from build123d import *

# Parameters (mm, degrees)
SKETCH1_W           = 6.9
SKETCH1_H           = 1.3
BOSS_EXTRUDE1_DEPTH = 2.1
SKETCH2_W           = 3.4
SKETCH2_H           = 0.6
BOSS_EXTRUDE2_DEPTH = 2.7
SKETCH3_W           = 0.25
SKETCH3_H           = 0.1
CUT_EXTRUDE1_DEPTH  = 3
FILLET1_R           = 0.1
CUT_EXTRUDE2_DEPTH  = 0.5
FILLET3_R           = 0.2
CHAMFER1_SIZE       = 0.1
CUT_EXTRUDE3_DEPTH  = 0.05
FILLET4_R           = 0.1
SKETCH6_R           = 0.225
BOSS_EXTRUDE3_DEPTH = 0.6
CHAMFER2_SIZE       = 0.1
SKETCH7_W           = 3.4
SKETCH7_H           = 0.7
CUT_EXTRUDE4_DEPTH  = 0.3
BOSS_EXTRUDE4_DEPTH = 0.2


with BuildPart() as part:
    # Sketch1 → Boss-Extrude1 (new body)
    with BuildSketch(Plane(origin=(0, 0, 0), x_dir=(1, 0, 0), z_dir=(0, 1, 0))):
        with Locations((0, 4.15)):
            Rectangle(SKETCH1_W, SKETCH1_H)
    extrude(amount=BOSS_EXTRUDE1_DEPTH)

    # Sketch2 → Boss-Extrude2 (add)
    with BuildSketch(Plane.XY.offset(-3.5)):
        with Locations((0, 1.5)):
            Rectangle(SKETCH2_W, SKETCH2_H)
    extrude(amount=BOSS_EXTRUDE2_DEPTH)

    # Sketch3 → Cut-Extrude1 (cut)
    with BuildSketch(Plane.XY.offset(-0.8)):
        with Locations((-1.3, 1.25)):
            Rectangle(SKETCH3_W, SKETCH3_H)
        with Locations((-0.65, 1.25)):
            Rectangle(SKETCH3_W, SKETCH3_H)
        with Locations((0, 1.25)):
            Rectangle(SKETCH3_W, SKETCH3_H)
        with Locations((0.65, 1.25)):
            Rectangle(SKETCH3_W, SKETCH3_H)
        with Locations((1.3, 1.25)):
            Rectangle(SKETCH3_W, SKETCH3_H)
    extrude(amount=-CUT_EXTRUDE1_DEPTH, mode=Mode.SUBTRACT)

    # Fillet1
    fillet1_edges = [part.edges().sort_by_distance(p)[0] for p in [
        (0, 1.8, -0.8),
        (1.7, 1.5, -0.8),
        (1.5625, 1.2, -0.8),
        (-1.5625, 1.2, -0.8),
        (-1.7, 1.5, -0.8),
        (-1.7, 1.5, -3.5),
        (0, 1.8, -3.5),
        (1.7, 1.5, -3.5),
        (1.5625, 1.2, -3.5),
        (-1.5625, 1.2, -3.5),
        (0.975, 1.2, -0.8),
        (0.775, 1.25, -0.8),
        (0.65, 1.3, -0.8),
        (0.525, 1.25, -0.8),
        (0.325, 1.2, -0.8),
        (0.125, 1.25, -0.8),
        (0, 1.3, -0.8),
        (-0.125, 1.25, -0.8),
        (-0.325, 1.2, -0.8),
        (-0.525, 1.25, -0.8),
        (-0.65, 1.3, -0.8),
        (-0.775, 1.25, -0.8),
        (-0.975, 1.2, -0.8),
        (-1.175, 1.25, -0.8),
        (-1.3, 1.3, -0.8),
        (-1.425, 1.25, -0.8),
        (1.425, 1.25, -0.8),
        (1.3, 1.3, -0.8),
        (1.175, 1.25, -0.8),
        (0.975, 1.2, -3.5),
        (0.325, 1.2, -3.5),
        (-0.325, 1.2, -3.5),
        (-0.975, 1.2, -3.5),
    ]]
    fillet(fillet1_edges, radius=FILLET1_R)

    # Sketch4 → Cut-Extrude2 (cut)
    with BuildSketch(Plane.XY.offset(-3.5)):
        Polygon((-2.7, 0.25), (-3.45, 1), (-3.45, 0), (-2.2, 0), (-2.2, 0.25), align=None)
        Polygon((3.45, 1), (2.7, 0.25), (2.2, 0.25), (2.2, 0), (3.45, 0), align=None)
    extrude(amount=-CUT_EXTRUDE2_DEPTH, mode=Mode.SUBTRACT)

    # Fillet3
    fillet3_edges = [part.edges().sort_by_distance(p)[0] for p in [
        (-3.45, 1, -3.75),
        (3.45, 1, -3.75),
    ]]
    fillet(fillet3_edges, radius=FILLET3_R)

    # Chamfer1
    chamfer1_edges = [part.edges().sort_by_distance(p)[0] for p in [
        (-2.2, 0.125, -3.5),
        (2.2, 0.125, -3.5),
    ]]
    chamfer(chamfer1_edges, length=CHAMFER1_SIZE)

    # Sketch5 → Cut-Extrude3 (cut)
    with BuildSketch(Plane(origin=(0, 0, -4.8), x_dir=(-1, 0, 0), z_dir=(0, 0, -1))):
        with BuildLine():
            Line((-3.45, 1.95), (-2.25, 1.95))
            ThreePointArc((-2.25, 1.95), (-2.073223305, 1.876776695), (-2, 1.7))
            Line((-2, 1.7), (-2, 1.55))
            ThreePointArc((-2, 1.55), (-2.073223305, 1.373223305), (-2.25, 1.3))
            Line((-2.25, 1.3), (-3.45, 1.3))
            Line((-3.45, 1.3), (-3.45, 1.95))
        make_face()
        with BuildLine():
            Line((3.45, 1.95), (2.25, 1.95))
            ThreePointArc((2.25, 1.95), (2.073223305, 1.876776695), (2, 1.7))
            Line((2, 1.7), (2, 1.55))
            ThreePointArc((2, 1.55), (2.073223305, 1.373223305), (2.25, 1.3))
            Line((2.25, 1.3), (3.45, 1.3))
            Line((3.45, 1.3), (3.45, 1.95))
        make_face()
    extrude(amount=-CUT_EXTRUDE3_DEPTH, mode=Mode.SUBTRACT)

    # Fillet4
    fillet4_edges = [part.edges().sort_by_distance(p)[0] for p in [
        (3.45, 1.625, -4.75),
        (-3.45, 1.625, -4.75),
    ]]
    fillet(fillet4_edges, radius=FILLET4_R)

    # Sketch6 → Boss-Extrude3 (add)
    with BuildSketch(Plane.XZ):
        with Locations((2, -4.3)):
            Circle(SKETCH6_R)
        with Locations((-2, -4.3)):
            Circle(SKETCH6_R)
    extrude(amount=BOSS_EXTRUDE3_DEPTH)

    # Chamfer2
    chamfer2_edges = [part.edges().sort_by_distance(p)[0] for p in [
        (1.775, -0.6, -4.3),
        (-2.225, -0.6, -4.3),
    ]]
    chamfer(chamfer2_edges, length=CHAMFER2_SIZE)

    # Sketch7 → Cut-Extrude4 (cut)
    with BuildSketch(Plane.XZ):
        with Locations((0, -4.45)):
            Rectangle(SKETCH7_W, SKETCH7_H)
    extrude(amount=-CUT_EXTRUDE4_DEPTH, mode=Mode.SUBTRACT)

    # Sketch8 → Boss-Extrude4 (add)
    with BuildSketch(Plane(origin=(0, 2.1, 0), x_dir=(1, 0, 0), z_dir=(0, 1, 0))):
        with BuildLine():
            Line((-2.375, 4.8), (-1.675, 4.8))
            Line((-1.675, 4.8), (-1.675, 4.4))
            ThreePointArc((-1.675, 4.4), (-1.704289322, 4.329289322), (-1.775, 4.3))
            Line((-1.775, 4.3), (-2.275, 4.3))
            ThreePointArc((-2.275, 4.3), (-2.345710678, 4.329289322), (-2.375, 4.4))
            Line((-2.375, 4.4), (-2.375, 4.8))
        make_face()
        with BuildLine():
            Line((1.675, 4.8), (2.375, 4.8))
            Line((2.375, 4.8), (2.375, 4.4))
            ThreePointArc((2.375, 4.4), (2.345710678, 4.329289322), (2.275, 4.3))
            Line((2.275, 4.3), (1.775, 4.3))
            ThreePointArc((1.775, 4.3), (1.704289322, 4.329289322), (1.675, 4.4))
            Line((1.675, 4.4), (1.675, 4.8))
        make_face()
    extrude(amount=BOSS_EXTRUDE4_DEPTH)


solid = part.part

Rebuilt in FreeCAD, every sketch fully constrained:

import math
import FreeCAD as App
import Part
import Sketcher


def edges_at(feature, points):
    """Names of the edges that pass closest to the given points."""
    edges = feature.Shape.Edges
    near = lambda p: min(range(len(edges)), key=lambda i: edges[i].distToShape(Part.Vertex(*p))[0])
    return sorted({f"Edge{near(p) + 1}" for p in points})

doc = App.newDocument("Part")
body = doc.addObject("PartDesign::Body", "Body")

# Sketch on XZ plane
sketch1 = body.newObject("Sketcher::SketchObject", "Sketch")
sketch1.AttachmentSupport = (doc.getObject("XZ_Plane"), [""])
sketch1.MapMode = "FlatFace"
sketch1.addGeometry([
    Part.LineSegment(App.Vector(-3.45, -4.8, 0), App.Vector(-3.45, -3.5, 0)),
    Part.LineSegment(App.Vector(-3.45, -3.5, 0), App.Vector(3.45, -3.5, 0)),
    Part.LineSegment(App.Vector(3.45, -3.5, 0), App.Vector(3.45, -4.8, 0)),
    Part.LineSegment(App.Vector(3.45, -4.8, 0), App.Vector(-3.45, -4.8, 0)),
], False)
sketch1.addConstraint([
    Sketcher.Constraint("Coincident", 0, 2, 1, 1),
    Sketcher.Constraint("Coincident", 1, 2, 2, 1),
    Sketcher.Constraint("Coincident", 2, 2, 3, 1),
    Sketcher.Constraint("Coincident", 3, 2, 0, 1),
    Sketcher.Constraint("Vertical", 0),
    Sketcher.Constraint("Horizontal", 1),
    Sketcher.Constraint("Vertical", 2),
    Sketcher.Constraint("Horizontal", 3),
    Sketcher.Constraint("DistanceX", 1, 1, 1, 2, 6.9),
    Sketcher.Constraint("DistanceY", 0, 1, 0, 2, 1.3),
    Sketcher.Constraint("DistanceY", 0, 2, -1, 1, 3.5),
    Sketcher.Constraint("DistanceX", 0, 2, -1, 1, 3.45),
])
pad1 = body.newObject("PartDesign::Pad", "Pad")
pad1.Profile = sketch1
pad1.Length = 2.1
pad1.Reversed = True

# Sketch on XY plane
sketch2 = body.newObject("Sketcher::SketchObject", "Sketch001")
sketch2.AttachmentSupport = (doc.getObject("XY_Plane"), [""])
sketch2.MapMode = "FlatFace"
sketch2.AttachmentOffset = App.Placement(App.Vector(0, 0, -3.5), App.Rotation())
sketch2.addGeometry([
    Part.LineSegment(App.Vector(-1.7, 1.8, 0), App.Vector(-1.7, 1.2, 0)),
    Part.LineSegment(App.Vector(-1.7, 1.2, 0), App.Vector(1.7, 1.2, 0)),
    Part.LineSegment(App.Vector(1.7, 1.2, 0), App.Vector(1.7, 1.8, 0)),
    Part.LineSegment(App.Vector(1.7, 1.8, 0), App.Vector(-1.7, 1.8, 0)),
], False)
sketch2.addConstraint([
    Sketcher.Constraint("Coincident", 0, 2, 1, 1),
    Sketcher.Constraint("Coincident", 1, 2, 2, 1),
    Sketcher.Constraint("Coincident", 2, 2, 3, 1),
    Sketcher.Constraint("Coincident", 3, 2, 0, 1),
    Sketcher.Constraint("Vertical", 0),
    Sketcher.Constraint("Horizontal", 1),
    Sketcher.Constraint("Vertical", 2),
    Sketcher.Constraint("Horizontal", 3),
    Sketcher.Constraint("DistanceX", 1, 1, 1, 2, 3.4),
    Sketcher.Constraint("DistanceY", 0, 2, 0, 1, 0.6),
    Sketcher.Constraint("DistanceX", 0, 2, -1, 1, 1.7),
    Sketcher.Constraint("DistanceY", -1, 1, 0, 2, 1.2),
])
pad2 = body.newObject("PartDesign::Pad", "Pad001")
pad2.Profile = sketch2
pad2.Length = 2.7

# Sketch on XY plane
sketch3 = body.newObject("Sketcher::SketchObject", "Sketch002")
sketch3.AttachmentSupport = (doc.getObject("XY_Plane"), [""])
sketch3.MapMode = "FlatFace"
sketch3.AttachmentOffset = App.Placement(App.Vector(0, 0, -0.8), App.Rotation())
sketch3.addGeometry([
    Part.LineSegment(App.Vector(-1.425, 1.3, 0), App.Vector(-1.425, 1.2, 0)),  # 0
    Part.LineSegment(App.Vector(-1.425, 1.2, 0), App.Vector(-1.175, 1.2, 0)),  # 1
    Part.LineSegment(App.Vector(-1.175, 1.2, 0), App.Vector(-1.175, 1.3, 0)),  # 2
    Part.LineSegment(App.Vector(-1.175, 1.3, 0), App.Vector(-1.425, 1.3, 0)),  # 3
    Part.LineSegment(App.Vector(-0.775, 1.3, 0), App.Vector(-0.775, 1.2, 0)),  # 4
    Part.LineSegment(App.Vector(-0.775, 1.2, 0), App.Vector(-0.525, 1.2, 0)),  # 5
    Part.LineSegment(App.Vector(-0.525, 1.2, 0), App.Vector(-0.525, 1.3, 0)),  # 6
    Part.LineSegment(App.Vector(-0.525, 1.3, 0), App.Vector(-0.775, 1.3, 0)),  # 7
    Part.LineSegment(App.Vector(-0.125, 1.3, 0), App.Vector(-0.125, 1.2, 0)),  # 8
    Part.LineSegment(App.Vector(-0.125, 1.2, 0), App.Vector(0.125, 1.2, 0)),  # 9
    Part.LineSegment(App.Vector(0.125, 1.2, 0), App.Vector(0.125, 1.3, 0)),  # 10
    Part.LineSegment(App.Vector(0.125, 1.3, 0), App.Vector(-0.125, 1.3, 0)),  # 11
    Part.LineSegment(App.Vector(0.525, 1.3, 0), App.Vector(0.525, 1.2, 0)),  # 12
    Part.LineSegment(App.Vector(0.525, 1.2, 0), App.Vector(0.775, 1.2, 0)),  # 13
    Part.LineSegment(App.Vector(0.775, 1.2, 0), App.Vector(0.775, 1.3, 0)),  # 14
    Part.LineSegment(App.Vector(0.775, 1.3, 0), App.Vector(0.525, 1.3, 0)),  # 15
    Part.LineSegment(App.Vector(1.175, 1.3, 0), App.Vector(1.175, 1.2, 0)),  # 16
    Part.LineSegment(App.Vector(1.175, 1.2, 0), App.Vector(1.425, 1.2, 0)),  # 17
    Part.LineSegment(App.Vector(1.425, 1.2, 0), App.Vector(1.425, 1.3, 0)),  # 18
    Part.LineSegment(App.Vector(1.425, 1.3, 0), App.Vector(1.175, 1.3, 0)),  # 19
], False)
sketch3.addConstraint([
    Sketcher.Constraint("Coincident", 0, 2, 1, 1),
    Sketcher.Constraint("Coincident", 1, 2, 2, 1),
    Sketcher.Constraint("Coincident", 2, 2, 3, 1),
    Sketcher.Constraint("Coincident", 3, 2, 0, 1),
    Sketcher.Constraint("Coincident", 4, 2, 5, 1),
    Sketcher.Constraint("Coincident", 5, 2, 6, 1),
    Sketcher.Constraint("Coincident", 6, 2, 7, 1),
    Sketcher.Constraint("Coincident", 7, 2, 4, 1),
    Sketcher.Constraint("Coincident", 8, 2, 9, 1),
    Sketcher.Constraint("Coincident", 9, 2, 10, 1),
    Sketcher.Constraint("Coincident", 10, 2, 11, 1),
    Sketcher.Constraint("Coincident", 11, 2, 8, 1),
    Sketcher.Constraint("Coincident", 12, 2, 13, 1),
    Sketcher.Constraint("Coincident", 13, 2, 14, 1),
    Sketcher.Constraint("Coincident", 14, 2, 15, 1),
    Sketcher.Constraint("Coincident", 15, 2, 12, 1),
    Sketcher.Constraint("Coincident", 16, 2, 17, 1),
    Sketcher.Constraint("Coincident", 17, 2, 18, 1),
    Sketcher.Constraint("Coincident", 18, 2, 19, 1),
    Sketcher.Constraint("Coincident", 19, 2, 16, 1),
    Sketcher.Constraint("Vertical", 0),
    Sketcher.Constraint("Horizontal", 1),
    Sketcher.Constraint("Vertical", 2),
    Sketcher.Constraint("Horizontal", 3),
    Sketcher.Constraint("Vertical", 4),
    Sketcher.Constraint("Horizontal", 5),
    Sketcher.Constraint("Vertical", 6),
    Sketcher.Constraint("Horizontal", 7),
    Sketcher.Constraint("Vertical", 8),
    Sketcher.Constraint("Horizontal", 9),
    Sketcher.Constraint("Vertical", 10),
    Sketcher.Constraint("Horizontal", 11),
    Sketcher.Constraint("Vertical", 12),
    Sketcher.Constraint("Horizontal", 13),
    Sketcher.Constraint("Vertical", 14),
    Sketcher.Constraint("Horizontal", 15),
    Sketcher.Constraint("Vertical", 16),
    Sketcher.Constraint("Horizontal", 17),
    Sketcher.Constraint("Vertical", 18),
    Sketcher.Constraint("Horizontal", 19),
    Sketcher.Constraint("Symmetric", 5, 2, 12, 2, -2),
    Sketcher.Constraint("Symmetric", 7, 2, 14, 2, -2),
    Sketcher.Constraint("Symmetric", 1, 2, 16, 2, -2),
    Sketcher.Constraint("Symmetric", 3, 2, 18, 2, -2),
    Sketcher.Constraint("Horizontal", 1, 2, 4, 2),
    Sketcher.Constraint("Horizontal", 3, 2, 6, 2),
    Sketcher.Constraint("Horizontal", 5, 2, 8, 2),
    Sketcher.Constraint("Horizontal", 7, 2, 10, 2),
    Sketcher.Constraint("Equal", 3, 5),
    Sketcher.Constraint("Equal", 7, 9),
    Sketcher.Constraint("DistanceY", 0, 2, 0, 1, 0.1),
    Sketcher.Constraint("DistanceX", 1, 1, 1, 2, 0.25),
    Sketcher.Constraint("DistanceY", -1, 1, 0, 2, 1.2),
    Sketcher.Constraint("DistanceX", 1, 2, 4, 2, 0.4),
    Sketcher.Constraint("DistanceX", 5, 2, 8, 2, 0.4),
    Sketcher.Constraint("DistanceX", 9, 2, 12, 2, 0.4),
])
pocket1 = body.newObject("PartDesign::Pocket", "Pocket")
pocket1.Profile = sketch3
pocket1.Length = 3
doc.recompute()

fillet = body.newObject("PartDesign::Fillet", "Fillet")
fillet.Base = (pocket1, edges_at(pocket1, [
    (0, 1.8, -0.8),
    (1.7, 1.5, -0.8),
    (1.562, 1.2, -0.8),
    (-1.562, 1.2, -0.8),
    (-1.7, 1.5, -0.8),
    (-1.7, 1.5, -3.5),
    (0, 1.8, -3.5),
    (1.7, 1.5, -3.5),
    (1.562, 1.2, -3.5),
    (-1.562, 1.2, -3.5),
    (0.975, 1.2, -0.8),
    (0.775, 1.25, -0.8),
    (0.65, 1.3, -0.8),
    (0.525, 1.25, -0.8),
    (0.325, 1.2, -0.8),
    (0.125, 1.25, -0.8),
    (0, 1.3, -0.8),
    (-0.125, 1.25, -0.8),
    (-0.325, 1.2, -0.8),
    (-0.525, 1.25, -0.8),
    (-0.65, 1.3, -0.8),
    (-0.775, 1.25, -0.8),
    (-0.975, 1.2, -0.8),
    (-1.175, 1.25, -0.8),
    (-1.3, 1.3, -0.8),
    (-1.425, 1.25, -0.8),
    (1.425, 1.25, -0.8),
    (1.3, 1.3, -0.8),
    (1.175, 1.25, -0.8),
    (0.975, 1.2, -3.5),
    (0.325, 1.2, -3.5),
    (-0.325, 1.2, -3.5),
    (-0.975, 1.2, -3.5),
]))
fillet.Radius = 0.1

# Sketch on XY plane
sketch4 = body.newObject("Sketcher::SketchObject", "Sketch003")
sketch4.AttachmentSupport = (doc.getObject("XY_Plane"), [""])
sketch4.MapMode = "FlatFace"
sketch4.AttachmentOffset = App.Placement(App.Vector(0, 0, -3.5), App.Rotation())
sketch4.addGeometry([
    Part.LineSegment(App.Vector(-2.7, 0.25, 0), App.Vector(-3.45, 1, 0)),  # 0
    Part.LineSegment(App.Vector(-3.45, 1, 0), App.Vector(-3.45, 0, 0)),  # 1
    Part.LineSegment(App.Vector(-3.45, 0, 0), App.Vector(-2.2, 0, 0)),  # 2
    Part.LineSegment(App.Vector(-2.2, 0, 0), App.Vector(-2.2, 0.25, 0)),  # 3
    Part.LineSegment(App.Vector(-2.2, 0.25, 0), App.Vector(-2.7, 0.25, 0)),  # 4
    Part.LineSegment(App.Vector(3.45, 1, 0), App.Vector(2.7, 0.25, 0)),  # 5
    Part.LineSegment(App.Vector(2.7, 0.25, 0), App.Vector(2.2, 0.25, 0)),  # 6
    Part.LineSegment(App.Vector(2.2, 0.25, 0), App.Vector(2.2, 0, 0)),  # 7
    Part.LineSegment(App.Vector(2.2, 0, 0), App.Vector(3.45, 0, 0)),  # 8
    Part.LineSegment(App.Vector(3.45, 0, 0), App.Vector(3.45, 1, 0)),  # 9
], False)
sketch4.addConstraint([
    Sketcher.Constraint("Coincident", 0, 2, 1, 1),
    Sketcher.Constraint("Coincident", 1, 2, 2, 1),
    Sketcher.Constraint("Coincident", 2, 2, 3, 1),
    Sketcher.Constraint("Coincident", 3, 2, 4, 1),
    Sketcher.Constraint("Coincident", 4, 2, 0, 1),
    Sketcher.Constraint("Coincident", 5, 2, 6, 1),
    Sketcher.Constraint("Coincident", 6, 2, 7, 1),
    Sketcher.Constraint("Coincident", 7, 2, 8, 1),
    Sketcher.Constraint("Coincident", 8, 2, 9, 1),
    Sketcher.Constraint("Coincident", 9, 2, 5, 1),
    Sketcher.Constraint("Vertical", 1),
    Sketcher.Constraint("Horizontal", 2),
    Sketcher.Constraint("Vertical", 3),
    Sketcher.Constraint("Horizontal", 4),
    Sketcher.Constraint("Horizontal", 6),
    Sketcher.Constraint("Vertical", 7),
    Sketcher.Constraint("Horizontal", 8),
    Sketcher.Constraint("Vertical", 9),
    Sketcher.Constraint("Symmetric", 2, 2, 7, 2, -1, 1),
    Sketcher.Constraint("Symmetric", 4, 2, 5, 2, -2),
    Sketcher.Constraint("Symmetric", 1, 2, 8, 2, -2),
    Sketcher.Constraint("Perpendicular", 0, 5),
    Sketcher.Constraint("Horizontal", 0, 2, 9, 2),
    Sketcher.Constraint("DistanceY", 1, 2, 1, 1, 1.0),
    Sketcher.Constraint("DistanceX", 4, 2, 4, 1, 0.5),
    Sketcher.Constraint("DistanceX", 2, 1, 2, 2, 1.25),
    Sketcher.Constraint("DistanceX", 2, 2, -1, 1, 2.2),
])
pocket2 = body.newObject("PartDesign::Pocket", "Pocket001")
pocket2.Profile = sketch4
pocket2.Length = 0.5
doc.recompute()

fillet2 = body.newObject("PartDesign::Fillet", "Fillet001")
fillet2.Base = (pocket2, edges_at(pocket2, [(-3.45, 1, -3.75), (3.45, 1, -3.75)]))
fillet2.Radius = 0.2
doc.recompute()

chamfer = body.newObject("PartDesign::Chamfer", "Chamfer")
chamfer.Base = (fillet2, edges_at(fillet2, [(-2.2, 0.125, -3.5), (2.2, 0.125, -3.5)]))
chamfer.Size = 0.1

# Sketch on XY plane
sketch5 = body.newObject("Sketcher::SketchObject", "Sketch004")
sketch5.AttachmentSupport = (doc.getObject("XY_Plane"), [""])
sketch5.MapMode = "FlatFace"
sketch5.AttachmentOffset = App.Placement(App.Vector(0, 0, -4.8), App.Rotation())
sketch5.addGeometry([
    Part.LineSegment(App.Vector(2.25, 1.95, 0), App.Vector(3.45, 1.95, 0)),  # 0
    Part.LineSegment(App.Vector(3.45, 1.95, 0), App.Vector(3.45, 1.3, 0)),  # 1
    Part.LineSegment(App.Vector(3.45, 1.3, 0), App.Vector(2.25, 1.3, 0)),  # 2
    Part.ArcOfCircle(Part.Circle(App.Vector(2.25, 1.55, 0), App.Vector(0, 0, 1), 0.25), math.radians(-180), math.radians(-90)),  # 3
    Part.LineSegment(App.Vector(2, 1.55, 0), App.Vector(2, 1.7, 0)),  # 4
    Part.ArcOfCircle(Part.Circle(App.Vector(2.25, 1.7, 0), App.Vector(0, 0, 1), 0.25), math.radians(90), math.radians(180)),  # 5
    Part.LineSegment(App.Vector(-3.45, 1.95, 0), App.Vector(-2.25, 1.95, 0)),  # 6
    Part.ArcOfCircle(Part.Circle(App.Vector(-2.25, 1.7, 0), App.Vector(0, 0, 1), 0.25), math.radians(0), math.radians(90)),  # 7
    Part.LineSegment(App.Vector(-2, 1.7, 0), App.Vector(-2, 1.55, 0)),  # 8
    Part.ArcOfCircle(Part.Circle(App.Vector(-2.25, 1.55, 0), App.Vector(0, 0, 1), 0.25), math.radians(-90), math.radians(0)),  # 9
    Part.LineSegment(App.Vector(-2.25, 1.3, 0), App.Vector(-3.45, 1.3, 0)),  # 10
    Part.LineSegment(App.Vector(-3.45, 1.3, 0), App.Vector(-3.45, 1.95, 0)),  # 11
], False)
sketch5.addConstraint([
    Sketcher.Constraint("Coincident", 0, 2, 1, 1),
    Sketcher.Constraint("Coincident", 1, 2, 2, 1),
    Sketcher.Constraint("Tangent", 2, 2, 3, 2),
    Sketcher.Constraint("Tangent", 3, 1, 4, 1),
    Sketcher.Constraint("Tangent", 4, 2, 5, 2),
    Sketcher.Constraint("Tangent", 5, 1, 0, 1),
    Sketcher.Constraint("Tangent", 6, 2, 7, 2),
    Sketcher.Constraint("Tangent", 7, 1, 8, 1),
    Sketcher.Constraint("Tangent", 8, 2, 9, 2),
    Sketcher.Constraint("Tangent", 9, 1, 10, 1),
    Sketcher.Constraint("Coincident", 10, 2, 11, 1),
    Sketcher.Constraint("Coincident", 11, 2, 6, 1),
    Sketcher.Constraint("Horizontal", 0),
    Sketcher.Constraint("Vertical", 1),
    Sketcher.Constraint("Horizontal", 2),
    Sketcher.Constraint("Vertical", 4),
    Sketcher.Constraint("Horizontal", 6),
    Sketcher.Constraint("Vertical", 8),
    Sketcher.Constraint("Horizontal", 10),
    Sketcher.Constraint("Vertical", 11),
    Sketcher.Constraint("Equal", 3, 5),
    Sketcher.Constraint("Equal", 5, 7),
    Sketcher.Constraint("Equal", 7, 9),
    Sketcher.Constraint("Symmetric", 5, 3, 7, 3, -2),
    Sketcher.Constraint("Symmetric", 1, 2, 10, 2, -2),
    Sketcher.Constraint("Radius", 3, 0.25),
    Sketcher.Constraint("DistanceX", 0, 1, 0, 2, 1.2),
    Sketcher.Constraint("DistanceX", -1, 1, 3, 1, 2.0),
    Sketcher.Constraint("DistanceY", 1, 2, 1, 1, 0.65),
    Sketcher.Constraint("DistanceY", -1, 1, 5, 3, 1.7),
])
pocket3 = body.newObject("PartDesign::Pocket", "Pocket002")
pocket3.Profile = sketch5
pocket3.Length = 0.05
pocket3.Reversed = True
doc.recompute()

fillet3 = body.newObject("PartDesign::Fillet", "Fillet002")
fillet3.Base = (pocket3, edges_at(pocket3, [(3.45, 1.625, -4.75), (-3.45, 1.625, -4.75)]))
fillet3.Radius = 0.1

# Sketch on XZ plane
sketch6 = body.newObject("Sketcher::SketchObject", "Sketch005")
sketch6.AttachmentSupport = (doc.getObject("XZ_Plane"), [""])
sketch6.MapMode = "FlatFace"
sketch6.addGeometry([
    Part.Circle(App.Vector(2, -4.3, 0), App.Vector(0, 0, 1), 0.225),
    Part.Circle(App.Vector(-2, -4.3, 0), App.Vector(0, 0, 1), 0.225),
], False)
sketch6.addConstraint([
    Sketcher.Constraint("Equal", 0, 1),
    Sketcher.Constraint("Symmetric", 0, 3, 1, 3, -2),
    Sketcher.Constraint("Diameter", 0, 0.45),
    Sketcher.Constraint("DistanceX", -1, 1, 0, 3, 2.0),
    Sketcher.Constraint("DistanceY", 0, 3, -1, 1, 4.3),
])
pad3 = body.newObject("PartDesign::Pad", "Pad002")
pad3.Profile = sketch6
pad3.Length = 0.6
doc.recompute()

chamfer2 = body.newObject("PartDesign::Chamfer", "Chamfer001")
chamfer2.Base = (pad3, edges_at(pad3, [(1.775, -0.6, -4.3), (-2.225, -0.6, -4.3)]))
chamfer2.Size = 0.1

# Sketch on XZ plane
sketch7 = body.newObject("Sketcher::SketchObject", "Sketch006")
sketch7.AttachmentSupport = (doc.getObject("XZ_Plane"), [""])
sketch7.MapMode = "FlatFace"
sketch7.addGeometry([
    Part.LineSegment(App.Vector(-1.7, -4.1, 0), App.Vector(-1.7, -4.8, 0)),
    Part.LineSegment(App.Vector(-1.7, -4.8, 0), App.Vector(1.7, -4.8, 0)),
    Part.LineSegment(App.Vector(1.7, -4.8, 0), App.Vector(1.7, -4.1, 0)),
    Part.LineSegment(App.Vector(1.7, -4.1, 0), App.Vector(-1.7, -4.1, 0)),
], False)
sketch7.addConstraint([
    Sketcher.Constraint("Coincident", 0, 2, 1, 1),
    Sketcher.Constraint("Coincident", 1, 2, 2, 1),
    Sketcher.Constraint("Coincident", 2, 2, 3, 1),
    Sketcher.Constraint("Coincident", 3, 2, 0, 1),
    Sketcher.Constraint("Vertical", 0),
    Sketcher.Constraint("Horizontal", 1),
    Sketcher.Constraint("Vertical", 2),
    Sketcher.Constraint("Horizontal", 3),
    Sketcher.Constraint("DistanceX", 1, 1, 1, 2, 3.4),
    Sketcher.Constraint("DistanceY", 0, 2, 0, 1, 0.7),
    Sketcher.Constraint("DistanceX", 0, 2, -1, 1, 1.7),
    Sketcher.Constraint("DistanceY", 0, 2, -1, 1, 4.8),
])
pocket4 = body.newObject("PartDesign::Pocket", "Pocket003")
pocket4.Profile = sketch7
pocket4.Length = 0.3

# Sketch on XZ plane
sketch8 = body.newObject("Sketcher::SketchObject", "Sketch007")
sketch8.AttachmentSupport = (doc.getObject("XZ_Plane"), [""])
sketch8.MapMode = "FlatFace"
sketch8.AttachmentOffset = App.Placement(App.Vector(0, 0, -2.1), App.Rotation())
sketch8.addGeometry([
    Part.LineSegment(App.Vector(-1.675, -4.8, 0), App.Vector(-2.375, -4.8, 0)),  # 0
    Part.LineSegment(App.Vector(-2.375, -4.8, 0), App.Vector(-2.375, -4.4, 0)),  # 1
    Part.ArcOfCircle(Part.Circle(App.Vector(-2.275, -4.4, 0), App.Vector(0, 0, 1), 0.1), math.radians(90), math.radians(180)),  # 2
    Part.LineSegment(App.Vector(-2.275, -4.3, 0), App.Vector(-1.775, -4.3, 0)),  # 3
    Part.ArcOfCircle(Part.Circle(App.Vector(-1.775, -4.4, 0), App.Vector(0, 0, 1), 0.1), math.radians(0), math.radians(90)),  # 4
    Part.LineSegment(App.Vector(-1.675, -4.4, 0), App.Vector(-1.675, -4.8, 0)),  # 5
    Part.LineSegment(App.Vector(2.375, -4.8, 0), App.Vector(1.675, -4.8, 0)),  # 6
    Part.LineSegment(App.Vector(1.675, -4.8, 0), App.Vector(1.675, -4.4, 0)),  # 7
    Part.ArcOfCircle(Part.Circle(App.Vector(1.775, -4.4, 0), App.Vector(0, 0, 1), 0.1), math.radians(90), math.radians(180)),  # 8
    Part.LineSegment(App.Vector(1.775, -4.3, 0), App.Vector(2.275, -4.3, 0)),  # 9
    Part.ArcOfCircle(Part.Circle(App.Vector(2.275, -4.4, 0), App.Vector(0, 0, 1), 0.1), math.radians(0), math.radians(90)),  # 10
    Part.LineSegment(App.Vector(2.375, -4.4, 0), App.Vector(2.375, -4.8, 0)),  # 11
], False)
sketch8.addConstraint([
    Sketcher.Constraint("Coincident", 0, 2, 1, 1),
    Sketcher.Constraint("Tangent", 1, 2, 2, 2),
    Sketcher.Constraint("Tangent", 2, 1, 3, 1),
    Sketcher.Constraint("Tangent", 3, 2, 4, 2),
    Sketcher.Constraint("Tangent", 4, 1, 5, 1),
    Sketcher.Constraint("Coincident", 5, 2, 0, 1),
    Sketcher.Constraint("Coincident", 6, 2, 7, 1),
    Sketcher.Constraint("Tangent", 7, 2, 8, 2),
    Sketcher.Constraint("Tangent", 8, 1, 9, 1),
    Sketcher.Constraint("Tangent", 9, 2, 10, 2),
    Sketcher.Constraint("Tangent", 10, 1, 11, 1),
    Sketcher.Constraint("Coincident", 11, 2, 6, 1),
    Sketcher.Constraint("Horizontal", 0),
    Sketcher.Constraint("Vertical", 1),
    Sketcher.Constraint("Horizontal", 3),
    Sketcher.Constraint("Vertical", 5),
    Sketcher.Constraint("Horizontal", 6),
    Sketcher.Constraint("Vertical", 7),
    Sketcher.Constraint("Horizontal", 9),
    Sketcher.Constraint("Vertical", 11),
    Sketcher.Constraint("Equal", 2, 4),
    Sketcher.Constraint("Equal", 4, 8),
    Sketcher.Constraint("Equal", 8, 10),
    Sketcher.Constraint("Symmetric", 4, 3, 8, 3, -2),
    Sketcher.Constraint("Symmetric", 0, 2, 11, 2, -2),
    Sketcher.Constraint("Radius", 2, 0.1),
    Sketcher.Constraint("DistanceX", 0, 2, 0, 1, 0.7),
    Sketcher.Constraint("DistanceY", 1, 1, 1, 2, 0.4),
    Sketcher.Constraint("DistanceY", 2, 3, -1, 1, 4.4),
    Sketcher.Constraint("DistanceX", 4, 3, 8, 3, 3.55),
])
pad4 = body.newObject("PartDesign::Pad", "Pad003")
pad4.Profile = sketch8
pad4.Length = 0.2
pad4.Reversed = True

doc.recompute()
